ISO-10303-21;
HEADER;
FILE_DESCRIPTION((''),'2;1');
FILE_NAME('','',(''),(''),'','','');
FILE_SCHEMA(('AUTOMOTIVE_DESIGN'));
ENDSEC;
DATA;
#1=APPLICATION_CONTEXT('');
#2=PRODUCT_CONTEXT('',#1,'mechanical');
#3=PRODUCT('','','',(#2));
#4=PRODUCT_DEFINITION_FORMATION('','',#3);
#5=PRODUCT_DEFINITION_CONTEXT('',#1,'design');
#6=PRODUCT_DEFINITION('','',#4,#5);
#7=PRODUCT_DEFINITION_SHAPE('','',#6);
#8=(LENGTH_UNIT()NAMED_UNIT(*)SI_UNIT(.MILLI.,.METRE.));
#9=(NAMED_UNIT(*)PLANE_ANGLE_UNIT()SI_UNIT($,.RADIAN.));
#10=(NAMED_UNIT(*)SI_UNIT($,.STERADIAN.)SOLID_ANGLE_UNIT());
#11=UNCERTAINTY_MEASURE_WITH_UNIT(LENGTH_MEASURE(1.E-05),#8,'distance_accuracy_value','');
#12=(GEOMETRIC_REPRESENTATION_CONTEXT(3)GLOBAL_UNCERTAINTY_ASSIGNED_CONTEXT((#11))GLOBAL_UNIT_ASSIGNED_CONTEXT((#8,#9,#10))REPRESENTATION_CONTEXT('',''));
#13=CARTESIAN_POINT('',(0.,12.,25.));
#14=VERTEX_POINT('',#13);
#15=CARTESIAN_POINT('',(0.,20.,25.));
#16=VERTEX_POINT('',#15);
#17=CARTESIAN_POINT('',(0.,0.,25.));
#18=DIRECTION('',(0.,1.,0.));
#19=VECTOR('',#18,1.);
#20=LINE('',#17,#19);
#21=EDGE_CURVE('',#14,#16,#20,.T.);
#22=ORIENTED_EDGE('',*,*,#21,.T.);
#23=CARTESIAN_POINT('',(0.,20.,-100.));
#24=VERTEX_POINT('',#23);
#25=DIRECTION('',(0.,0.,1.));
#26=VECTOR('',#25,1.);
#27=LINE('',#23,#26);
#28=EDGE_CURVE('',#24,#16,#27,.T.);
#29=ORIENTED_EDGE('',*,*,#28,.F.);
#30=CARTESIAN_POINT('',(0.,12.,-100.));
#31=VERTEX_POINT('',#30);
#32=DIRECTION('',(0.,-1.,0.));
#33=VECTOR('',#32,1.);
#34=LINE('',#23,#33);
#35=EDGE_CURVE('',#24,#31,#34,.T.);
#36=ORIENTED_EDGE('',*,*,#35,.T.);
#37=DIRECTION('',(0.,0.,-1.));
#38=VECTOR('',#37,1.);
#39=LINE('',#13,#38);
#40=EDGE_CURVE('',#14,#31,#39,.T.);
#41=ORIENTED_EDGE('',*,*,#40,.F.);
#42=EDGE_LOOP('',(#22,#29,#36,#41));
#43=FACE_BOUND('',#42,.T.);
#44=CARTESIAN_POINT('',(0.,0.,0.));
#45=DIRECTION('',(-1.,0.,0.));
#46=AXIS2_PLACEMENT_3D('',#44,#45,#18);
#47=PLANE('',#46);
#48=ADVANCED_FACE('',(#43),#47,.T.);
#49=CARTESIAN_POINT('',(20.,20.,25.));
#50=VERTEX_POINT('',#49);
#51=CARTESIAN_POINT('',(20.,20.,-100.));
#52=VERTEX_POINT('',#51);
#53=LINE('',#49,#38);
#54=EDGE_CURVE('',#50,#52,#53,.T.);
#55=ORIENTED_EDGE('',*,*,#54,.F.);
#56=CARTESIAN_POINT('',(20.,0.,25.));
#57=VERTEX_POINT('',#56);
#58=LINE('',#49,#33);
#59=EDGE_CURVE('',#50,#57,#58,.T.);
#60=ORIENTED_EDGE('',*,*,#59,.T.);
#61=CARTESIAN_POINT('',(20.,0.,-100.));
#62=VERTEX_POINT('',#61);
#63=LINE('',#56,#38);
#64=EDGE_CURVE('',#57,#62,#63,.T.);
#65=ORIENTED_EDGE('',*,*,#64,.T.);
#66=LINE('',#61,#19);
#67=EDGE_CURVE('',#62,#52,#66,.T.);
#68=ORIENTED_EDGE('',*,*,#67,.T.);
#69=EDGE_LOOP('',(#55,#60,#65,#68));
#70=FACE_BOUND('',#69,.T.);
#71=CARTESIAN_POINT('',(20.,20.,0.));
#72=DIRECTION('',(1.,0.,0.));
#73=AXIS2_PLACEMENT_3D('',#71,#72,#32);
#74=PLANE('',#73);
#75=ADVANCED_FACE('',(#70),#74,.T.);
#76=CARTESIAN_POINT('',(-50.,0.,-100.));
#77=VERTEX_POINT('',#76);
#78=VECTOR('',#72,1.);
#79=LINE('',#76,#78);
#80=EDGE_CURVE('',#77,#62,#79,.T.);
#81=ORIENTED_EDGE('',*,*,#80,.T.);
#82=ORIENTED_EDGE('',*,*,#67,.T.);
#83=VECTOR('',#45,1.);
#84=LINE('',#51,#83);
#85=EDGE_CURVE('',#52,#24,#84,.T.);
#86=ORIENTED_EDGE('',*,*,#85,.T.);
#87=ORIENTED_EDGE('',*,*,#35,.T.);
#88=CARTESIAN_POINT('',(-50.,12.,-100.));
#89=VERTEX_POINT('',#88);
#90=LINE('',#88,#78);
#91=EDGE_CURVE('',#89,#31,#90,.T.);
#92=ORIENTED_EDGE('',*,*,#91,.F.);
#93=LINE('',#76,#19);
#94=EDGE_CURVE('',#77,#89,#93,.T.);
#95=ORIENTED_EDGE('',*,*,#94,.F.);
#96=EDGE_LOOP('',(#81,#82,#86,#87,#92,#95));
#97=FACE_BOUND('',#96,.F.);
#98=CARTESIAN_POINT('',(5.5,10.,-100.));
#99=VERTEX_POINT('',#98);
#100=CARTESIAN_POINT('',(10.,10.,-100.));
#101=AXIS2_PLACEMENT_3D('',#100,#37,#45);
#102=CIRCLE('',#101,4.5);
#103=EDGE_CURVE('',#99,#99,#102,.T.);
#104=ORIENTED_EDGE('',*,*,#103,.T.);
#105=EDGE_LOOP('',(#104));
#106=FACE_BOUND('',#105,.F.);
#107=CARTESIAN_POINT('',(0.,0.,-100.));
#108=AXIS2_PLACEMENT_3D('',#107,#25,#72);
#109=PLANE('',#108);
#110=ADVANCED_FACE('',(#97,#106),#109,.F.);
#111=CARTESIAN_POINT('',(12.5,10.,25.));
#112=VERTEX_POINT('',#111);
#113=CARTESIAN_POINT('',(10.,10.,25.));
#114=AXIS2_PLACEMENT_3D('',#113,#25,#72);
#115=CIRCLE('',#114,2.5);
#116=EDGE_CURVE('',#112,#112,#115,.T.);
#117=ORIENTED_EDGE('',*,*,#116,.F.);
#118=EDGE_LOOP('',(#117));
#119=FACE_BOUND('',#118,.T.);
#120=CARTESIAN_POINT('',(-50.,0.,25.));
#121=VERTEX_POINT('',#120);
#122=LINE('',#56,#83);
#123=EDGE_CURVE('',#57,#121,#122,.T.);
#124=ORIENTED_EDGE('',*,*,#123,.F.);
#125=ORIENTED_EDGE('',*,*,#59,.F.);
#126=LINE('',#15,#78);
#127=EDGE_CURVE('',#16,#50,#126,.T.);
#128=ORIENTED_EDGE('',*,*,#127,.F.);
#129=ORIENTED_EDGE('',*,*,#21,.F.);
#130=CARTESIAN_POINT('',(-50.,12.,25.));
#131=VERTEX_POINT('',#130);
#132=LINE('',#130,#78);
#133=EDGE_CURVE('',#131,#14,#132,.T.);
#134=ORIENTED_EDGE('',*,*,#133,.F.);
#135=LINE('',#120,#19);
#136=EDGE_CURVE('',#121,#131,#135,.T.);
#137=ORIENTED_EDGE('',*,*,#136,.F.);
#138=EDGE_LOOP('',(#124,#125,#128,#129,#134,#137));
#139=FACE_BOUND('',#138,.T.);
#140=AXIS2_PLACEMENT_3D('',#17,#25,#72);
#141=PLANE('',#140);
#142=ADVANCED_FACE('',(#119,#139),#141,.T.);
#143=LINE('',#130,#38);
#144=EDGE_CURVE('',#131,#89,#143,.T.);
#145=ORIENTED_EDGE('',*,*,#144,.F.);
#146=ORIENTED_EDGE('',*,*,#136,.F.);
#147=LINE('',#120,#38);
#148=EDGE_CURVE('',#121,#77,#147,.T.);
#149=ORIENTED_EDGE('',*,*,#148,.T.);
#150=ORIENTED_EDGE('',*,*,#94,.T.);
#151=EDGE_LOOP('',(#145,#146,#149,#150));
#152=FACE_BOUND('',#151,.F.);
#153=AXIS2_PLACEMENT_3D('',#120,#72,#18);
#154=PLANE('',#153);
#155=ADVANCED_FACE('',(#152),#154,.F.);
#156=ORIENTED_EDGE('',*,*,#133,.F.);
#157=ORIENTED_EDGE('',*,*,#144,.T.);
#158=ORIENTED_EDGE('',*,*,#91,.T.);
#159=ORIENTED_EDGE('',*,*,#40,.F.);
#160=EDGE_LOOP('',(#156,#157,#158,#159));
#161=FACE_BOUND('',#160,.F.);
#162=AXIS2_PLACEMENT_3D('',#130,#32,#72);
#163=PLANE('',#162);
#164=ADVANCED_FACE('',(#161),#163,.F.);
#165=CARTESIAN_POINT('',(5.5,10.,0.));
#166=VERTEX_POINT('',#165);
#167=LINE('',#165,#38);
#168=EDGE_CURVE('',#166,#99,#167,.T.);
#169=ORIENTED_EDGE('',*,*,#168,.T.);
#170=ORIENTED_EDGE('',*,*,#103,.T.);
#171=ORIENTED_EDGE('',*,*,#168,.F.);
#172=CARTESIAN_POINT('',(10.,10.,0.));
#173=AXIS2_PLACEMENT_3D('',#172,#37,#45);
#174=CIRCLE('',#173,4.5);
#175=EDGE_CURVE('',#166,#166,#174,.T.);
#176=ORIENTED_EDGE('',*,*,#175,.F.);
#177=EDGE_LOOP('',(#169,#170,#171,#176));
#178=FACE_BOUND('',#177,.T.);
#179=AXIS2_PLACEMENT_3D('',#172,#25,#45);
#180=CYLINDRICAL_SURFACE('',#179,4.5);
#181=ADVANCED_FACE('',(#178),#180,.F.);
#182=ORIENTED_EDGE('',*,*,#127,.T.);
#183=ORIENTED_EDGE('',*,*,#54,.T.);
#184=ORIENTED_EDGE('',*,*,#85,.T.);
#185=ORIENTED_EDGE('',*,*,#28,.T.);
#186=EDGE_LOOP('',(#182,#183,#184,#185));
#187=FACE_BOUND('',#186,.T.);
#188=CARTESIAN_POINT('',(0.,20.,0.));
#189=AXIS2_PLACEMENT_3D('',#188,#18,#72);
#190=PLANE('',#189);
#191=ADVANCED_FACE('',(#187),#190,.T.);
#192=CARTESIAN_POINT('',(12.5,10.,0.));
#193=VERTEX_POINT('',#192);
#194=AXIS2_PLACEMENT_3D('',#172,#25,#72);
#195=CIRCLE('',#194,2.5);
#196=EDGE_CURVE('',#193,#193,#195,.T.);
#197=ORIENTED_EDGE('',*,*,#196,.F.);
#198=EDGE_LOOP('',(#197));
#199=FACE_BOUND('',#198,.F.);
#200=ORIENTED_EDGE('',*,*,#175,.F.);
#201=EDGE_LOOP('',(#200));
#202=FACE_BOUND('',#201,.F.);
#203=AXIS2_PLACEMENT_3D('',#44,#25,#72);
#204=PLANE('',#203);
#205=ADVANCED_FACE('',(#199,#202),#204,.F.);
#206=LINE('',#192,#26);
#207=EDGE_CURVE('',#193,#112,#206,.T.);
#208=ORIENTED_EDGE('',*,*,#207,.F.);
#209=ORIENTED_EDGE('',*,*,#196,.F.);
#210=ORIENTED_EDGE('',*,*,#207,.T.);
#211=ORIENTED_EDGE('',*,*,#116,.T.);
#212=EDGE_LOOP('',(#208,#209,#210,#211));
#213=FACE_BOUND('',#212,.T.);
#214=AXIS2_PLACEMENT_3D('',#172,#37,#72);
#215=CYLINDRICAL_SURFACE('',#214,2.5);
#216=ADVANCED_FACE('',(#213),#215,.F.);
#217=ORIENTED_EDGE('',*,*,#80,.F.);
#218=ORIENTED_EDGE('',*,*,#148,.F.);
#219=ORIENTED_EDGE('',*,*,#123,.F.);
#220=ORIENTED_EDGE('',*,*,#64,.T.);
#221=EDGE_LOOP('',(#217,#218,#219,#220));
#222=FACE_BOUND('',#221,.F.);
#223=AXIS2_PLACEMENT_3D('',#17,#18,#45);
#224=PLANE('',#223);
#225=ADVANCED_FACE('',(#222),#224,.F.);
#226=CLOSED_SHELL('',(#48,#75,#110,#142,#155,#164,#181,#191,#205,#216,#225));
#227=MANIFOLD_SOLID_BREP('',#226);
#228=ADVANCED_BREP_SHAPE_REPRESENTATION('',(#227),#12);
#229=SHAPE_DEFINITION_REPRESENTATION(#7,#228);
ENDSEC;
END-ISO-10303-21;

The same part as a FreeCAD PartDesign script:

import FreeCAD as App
import Part
import Sketcher
from FreeCAD import Vector


def add_polygon(sketch, points):
    """Adds a closed chain of lines whose ends are joined by coincident constraints."""
    first, n = sketch.GeometryCount, len(points)
    for a, b in zip(points, points[1:] + points[:1]):
        sketch.addGeometry(Part.LineSegment(App.Vector(*a, 0), App.Vector(*b, 0)), False)
    for i in range(n):
        sketch.addConstraint(Sketcher.Constraint("Coincident", first + i, 2, first + (i + 1) % n, 1))

doc = App.newDocument("Part")
params = doc.addObject("Spreadsheet::Sheet", "Params")
for row, (alias, value) in enumerate([
    ("sketch1_diameter", "5 mm"),
    ("sketch1_width", "20 mm"),
    ("pad1_length", "25 mm"),
    ("sketch2_diameter", "9 mm"),
    ("sketch2_width", "20 mm"),
    ("pad2_length", "100 mm"),
    ("sketch3_width", "50 mm"),
    ("sketch3_height", "12 mm"),
    ("pad3_length", "125 mm"),
], start=1):
    params.set(f"A{row}", alias)
    params.set(f"B{row}", "=" + value)
    params.setAlias(f"B{row}", alias)

body = doc.addObject("PartDesign::Body", "Body")

sketch1 = body.newObject("Sketcher::SketchObject", "Sketch")
sketch1.AttachmentSupport = (doc.getObject("XY_Plane"), [""])
sketch1.MapMode = "FlatFace"
add_polygon(sketch1, [(20, 20), (0, 20), (0, 0), (20, 0)])
sketch1.addGeometry(Part.Circle(Vector(10, 10, 0), Vector(0, 0, 1), 2.5), False)
sketch1.addConstraint(Sketcher.Constraint("Horizontal", 0))
sketch1.addConstraint(Sketcher.Constraint("Vertical", 1))
sketch1.addConstraint(Sketcher.Constraint("Horizontal", 2))
sketch1.addConstraint(Sketcher.Constraint("Vertical", 3))
sketch1.addConstraint(Sketcher.Constraint("Coincident", 1, 2, -1, 1))
sketch1.addConstraint(Sketcher.Constraint("Equal", 2, 1))
sketch1.addConstraint(Sketcher.Constraint("Diameter", 4, 5.0))
sketch1.addConstraint(Sketcher.Constraint("DistanceX", 0, 2, 0, 1, 20.0))
sketch1.addConstraint(Sketcher.Constraint("DistanceX", -1, 1, 4, 3, 10.0))
sketch1.addConstraint(Sketcher.Constraint("DistanceY", -1, 1, 4, 3, 10.0))
sketch1.setExpression("Constraints[10]", "Params.sketch1_diameter")
sketch1.setExpression("Constraints[11]", "Params.sketch1_width")
pad1 = body.newObject("PartDesign::Pad", "Pad")
pad1.Profile = sketch1
pad1.setExpression("Length", "Params.pad1_length")

sketch2 = body.newObject("Sketcher::SketchObject", "Sketch001")
sketch2.AttachmentSupport = (doc.getObject("XY_Plane"), [""])
sketch2.MapMode = "FlatFace"
add_polygon(sketch2, [(0, 20), (20, 20), (20, 0), (0, 0)])
sketch2.addGeometry(Part.Circle(Vector(10, 10, 0), Vector(0, 0, 1), 4.5), False)
sketch2.addConstraint(Sketcher.Constraint("Horizontal", 0))
sketch2.addConstraint(Sketcher.Constraint("Vertical", 1))
sketch2.addConstraint(Sketcher.Constraint("Horizontal", 2))
sketch2.addConstraint(Sketcher.Constraint("Vertical", 3))
sketch2.addConstraint(Sketcher.Constraint("Coincident", 2, 2, -1, 1))
sketch2.addConstraint(Sketcher.Constraint("Equal", 2, 1))
sketch2.addConstraint(Sketcher.Constraint("Diameter", 4, 9.0))
sketch2.addConstraint(Sketcher.Constraint("DistanceX", 0, 1, 0, 2, 20.0))
sketch2.addConstraint(Sketcher.Constraint("DistanceX", -1, 1, 4, 3, 10.0))
sketch2.addConstraint(Sketcher.Constraint("DistanceY", -1, 1, 4, 3, 10.0))
sketch2.setExpression("Constraints[10]", "Params.sketch2_diameter")
sketch2.setExpression("Constraints[11]", "Params.sketch2_width")
pad2 = body.newObject("PartDesign::Pad", "Pad001")
pad2.Profile = sketch2
pad2.setExpression("Length", "Params.pad2_length")
pad2.Reversed = True

sketch3 = body.newObject("Sketcher::SketchObject", "Sketch002")
sketch3.AttachmentSupport = (doc.getObject("XY_Plane"), [""])
sketch3.MapMode = "FlatFace"
sketch3.AttachmentOffset = App.Placement(Vector(0, 0, 25), App.Rotation())
add_polygon(sketch3, [(-50, 0), (0, 0), (0, 12), (-50, 12)])
sketch3.addConstraint(Sketcher.Constraint("Horizontal", 0))
sketch3.addConstraint(Sketcher.Constraint("Vertical", 1))
sketch3.addConstraint(Sketcher.Constraint("Horizontal", 2))
sketch3.addConstraint(Sketcher.Constraint("Vertical", 3))
sketch3.addConstraint(Sketcher.Constraint("Coincident", 0, 2, -1, 1))
sketch3.addConstraint(Sketcher.Constraint("DistanceX", 0, 1, 0, 2, 50.0))
sketch3.addConstraint(Sketcher.Constraint("DistanceY", 1, 1, 1, 2, 12.0))
sketch3.setExpression("Constraints[9]", "Params.sketch3_width")
sketch3.setExpression("Constraints[10]", "Params.sketch3_height")
pad3 = body.newObject("PartDesign::Pad", "Pad002")
pad3.Profile = sketch3
pad3.setExpression("Length", "Params.pad3_length")
pad3.Reversed = True

doc.recompute()
